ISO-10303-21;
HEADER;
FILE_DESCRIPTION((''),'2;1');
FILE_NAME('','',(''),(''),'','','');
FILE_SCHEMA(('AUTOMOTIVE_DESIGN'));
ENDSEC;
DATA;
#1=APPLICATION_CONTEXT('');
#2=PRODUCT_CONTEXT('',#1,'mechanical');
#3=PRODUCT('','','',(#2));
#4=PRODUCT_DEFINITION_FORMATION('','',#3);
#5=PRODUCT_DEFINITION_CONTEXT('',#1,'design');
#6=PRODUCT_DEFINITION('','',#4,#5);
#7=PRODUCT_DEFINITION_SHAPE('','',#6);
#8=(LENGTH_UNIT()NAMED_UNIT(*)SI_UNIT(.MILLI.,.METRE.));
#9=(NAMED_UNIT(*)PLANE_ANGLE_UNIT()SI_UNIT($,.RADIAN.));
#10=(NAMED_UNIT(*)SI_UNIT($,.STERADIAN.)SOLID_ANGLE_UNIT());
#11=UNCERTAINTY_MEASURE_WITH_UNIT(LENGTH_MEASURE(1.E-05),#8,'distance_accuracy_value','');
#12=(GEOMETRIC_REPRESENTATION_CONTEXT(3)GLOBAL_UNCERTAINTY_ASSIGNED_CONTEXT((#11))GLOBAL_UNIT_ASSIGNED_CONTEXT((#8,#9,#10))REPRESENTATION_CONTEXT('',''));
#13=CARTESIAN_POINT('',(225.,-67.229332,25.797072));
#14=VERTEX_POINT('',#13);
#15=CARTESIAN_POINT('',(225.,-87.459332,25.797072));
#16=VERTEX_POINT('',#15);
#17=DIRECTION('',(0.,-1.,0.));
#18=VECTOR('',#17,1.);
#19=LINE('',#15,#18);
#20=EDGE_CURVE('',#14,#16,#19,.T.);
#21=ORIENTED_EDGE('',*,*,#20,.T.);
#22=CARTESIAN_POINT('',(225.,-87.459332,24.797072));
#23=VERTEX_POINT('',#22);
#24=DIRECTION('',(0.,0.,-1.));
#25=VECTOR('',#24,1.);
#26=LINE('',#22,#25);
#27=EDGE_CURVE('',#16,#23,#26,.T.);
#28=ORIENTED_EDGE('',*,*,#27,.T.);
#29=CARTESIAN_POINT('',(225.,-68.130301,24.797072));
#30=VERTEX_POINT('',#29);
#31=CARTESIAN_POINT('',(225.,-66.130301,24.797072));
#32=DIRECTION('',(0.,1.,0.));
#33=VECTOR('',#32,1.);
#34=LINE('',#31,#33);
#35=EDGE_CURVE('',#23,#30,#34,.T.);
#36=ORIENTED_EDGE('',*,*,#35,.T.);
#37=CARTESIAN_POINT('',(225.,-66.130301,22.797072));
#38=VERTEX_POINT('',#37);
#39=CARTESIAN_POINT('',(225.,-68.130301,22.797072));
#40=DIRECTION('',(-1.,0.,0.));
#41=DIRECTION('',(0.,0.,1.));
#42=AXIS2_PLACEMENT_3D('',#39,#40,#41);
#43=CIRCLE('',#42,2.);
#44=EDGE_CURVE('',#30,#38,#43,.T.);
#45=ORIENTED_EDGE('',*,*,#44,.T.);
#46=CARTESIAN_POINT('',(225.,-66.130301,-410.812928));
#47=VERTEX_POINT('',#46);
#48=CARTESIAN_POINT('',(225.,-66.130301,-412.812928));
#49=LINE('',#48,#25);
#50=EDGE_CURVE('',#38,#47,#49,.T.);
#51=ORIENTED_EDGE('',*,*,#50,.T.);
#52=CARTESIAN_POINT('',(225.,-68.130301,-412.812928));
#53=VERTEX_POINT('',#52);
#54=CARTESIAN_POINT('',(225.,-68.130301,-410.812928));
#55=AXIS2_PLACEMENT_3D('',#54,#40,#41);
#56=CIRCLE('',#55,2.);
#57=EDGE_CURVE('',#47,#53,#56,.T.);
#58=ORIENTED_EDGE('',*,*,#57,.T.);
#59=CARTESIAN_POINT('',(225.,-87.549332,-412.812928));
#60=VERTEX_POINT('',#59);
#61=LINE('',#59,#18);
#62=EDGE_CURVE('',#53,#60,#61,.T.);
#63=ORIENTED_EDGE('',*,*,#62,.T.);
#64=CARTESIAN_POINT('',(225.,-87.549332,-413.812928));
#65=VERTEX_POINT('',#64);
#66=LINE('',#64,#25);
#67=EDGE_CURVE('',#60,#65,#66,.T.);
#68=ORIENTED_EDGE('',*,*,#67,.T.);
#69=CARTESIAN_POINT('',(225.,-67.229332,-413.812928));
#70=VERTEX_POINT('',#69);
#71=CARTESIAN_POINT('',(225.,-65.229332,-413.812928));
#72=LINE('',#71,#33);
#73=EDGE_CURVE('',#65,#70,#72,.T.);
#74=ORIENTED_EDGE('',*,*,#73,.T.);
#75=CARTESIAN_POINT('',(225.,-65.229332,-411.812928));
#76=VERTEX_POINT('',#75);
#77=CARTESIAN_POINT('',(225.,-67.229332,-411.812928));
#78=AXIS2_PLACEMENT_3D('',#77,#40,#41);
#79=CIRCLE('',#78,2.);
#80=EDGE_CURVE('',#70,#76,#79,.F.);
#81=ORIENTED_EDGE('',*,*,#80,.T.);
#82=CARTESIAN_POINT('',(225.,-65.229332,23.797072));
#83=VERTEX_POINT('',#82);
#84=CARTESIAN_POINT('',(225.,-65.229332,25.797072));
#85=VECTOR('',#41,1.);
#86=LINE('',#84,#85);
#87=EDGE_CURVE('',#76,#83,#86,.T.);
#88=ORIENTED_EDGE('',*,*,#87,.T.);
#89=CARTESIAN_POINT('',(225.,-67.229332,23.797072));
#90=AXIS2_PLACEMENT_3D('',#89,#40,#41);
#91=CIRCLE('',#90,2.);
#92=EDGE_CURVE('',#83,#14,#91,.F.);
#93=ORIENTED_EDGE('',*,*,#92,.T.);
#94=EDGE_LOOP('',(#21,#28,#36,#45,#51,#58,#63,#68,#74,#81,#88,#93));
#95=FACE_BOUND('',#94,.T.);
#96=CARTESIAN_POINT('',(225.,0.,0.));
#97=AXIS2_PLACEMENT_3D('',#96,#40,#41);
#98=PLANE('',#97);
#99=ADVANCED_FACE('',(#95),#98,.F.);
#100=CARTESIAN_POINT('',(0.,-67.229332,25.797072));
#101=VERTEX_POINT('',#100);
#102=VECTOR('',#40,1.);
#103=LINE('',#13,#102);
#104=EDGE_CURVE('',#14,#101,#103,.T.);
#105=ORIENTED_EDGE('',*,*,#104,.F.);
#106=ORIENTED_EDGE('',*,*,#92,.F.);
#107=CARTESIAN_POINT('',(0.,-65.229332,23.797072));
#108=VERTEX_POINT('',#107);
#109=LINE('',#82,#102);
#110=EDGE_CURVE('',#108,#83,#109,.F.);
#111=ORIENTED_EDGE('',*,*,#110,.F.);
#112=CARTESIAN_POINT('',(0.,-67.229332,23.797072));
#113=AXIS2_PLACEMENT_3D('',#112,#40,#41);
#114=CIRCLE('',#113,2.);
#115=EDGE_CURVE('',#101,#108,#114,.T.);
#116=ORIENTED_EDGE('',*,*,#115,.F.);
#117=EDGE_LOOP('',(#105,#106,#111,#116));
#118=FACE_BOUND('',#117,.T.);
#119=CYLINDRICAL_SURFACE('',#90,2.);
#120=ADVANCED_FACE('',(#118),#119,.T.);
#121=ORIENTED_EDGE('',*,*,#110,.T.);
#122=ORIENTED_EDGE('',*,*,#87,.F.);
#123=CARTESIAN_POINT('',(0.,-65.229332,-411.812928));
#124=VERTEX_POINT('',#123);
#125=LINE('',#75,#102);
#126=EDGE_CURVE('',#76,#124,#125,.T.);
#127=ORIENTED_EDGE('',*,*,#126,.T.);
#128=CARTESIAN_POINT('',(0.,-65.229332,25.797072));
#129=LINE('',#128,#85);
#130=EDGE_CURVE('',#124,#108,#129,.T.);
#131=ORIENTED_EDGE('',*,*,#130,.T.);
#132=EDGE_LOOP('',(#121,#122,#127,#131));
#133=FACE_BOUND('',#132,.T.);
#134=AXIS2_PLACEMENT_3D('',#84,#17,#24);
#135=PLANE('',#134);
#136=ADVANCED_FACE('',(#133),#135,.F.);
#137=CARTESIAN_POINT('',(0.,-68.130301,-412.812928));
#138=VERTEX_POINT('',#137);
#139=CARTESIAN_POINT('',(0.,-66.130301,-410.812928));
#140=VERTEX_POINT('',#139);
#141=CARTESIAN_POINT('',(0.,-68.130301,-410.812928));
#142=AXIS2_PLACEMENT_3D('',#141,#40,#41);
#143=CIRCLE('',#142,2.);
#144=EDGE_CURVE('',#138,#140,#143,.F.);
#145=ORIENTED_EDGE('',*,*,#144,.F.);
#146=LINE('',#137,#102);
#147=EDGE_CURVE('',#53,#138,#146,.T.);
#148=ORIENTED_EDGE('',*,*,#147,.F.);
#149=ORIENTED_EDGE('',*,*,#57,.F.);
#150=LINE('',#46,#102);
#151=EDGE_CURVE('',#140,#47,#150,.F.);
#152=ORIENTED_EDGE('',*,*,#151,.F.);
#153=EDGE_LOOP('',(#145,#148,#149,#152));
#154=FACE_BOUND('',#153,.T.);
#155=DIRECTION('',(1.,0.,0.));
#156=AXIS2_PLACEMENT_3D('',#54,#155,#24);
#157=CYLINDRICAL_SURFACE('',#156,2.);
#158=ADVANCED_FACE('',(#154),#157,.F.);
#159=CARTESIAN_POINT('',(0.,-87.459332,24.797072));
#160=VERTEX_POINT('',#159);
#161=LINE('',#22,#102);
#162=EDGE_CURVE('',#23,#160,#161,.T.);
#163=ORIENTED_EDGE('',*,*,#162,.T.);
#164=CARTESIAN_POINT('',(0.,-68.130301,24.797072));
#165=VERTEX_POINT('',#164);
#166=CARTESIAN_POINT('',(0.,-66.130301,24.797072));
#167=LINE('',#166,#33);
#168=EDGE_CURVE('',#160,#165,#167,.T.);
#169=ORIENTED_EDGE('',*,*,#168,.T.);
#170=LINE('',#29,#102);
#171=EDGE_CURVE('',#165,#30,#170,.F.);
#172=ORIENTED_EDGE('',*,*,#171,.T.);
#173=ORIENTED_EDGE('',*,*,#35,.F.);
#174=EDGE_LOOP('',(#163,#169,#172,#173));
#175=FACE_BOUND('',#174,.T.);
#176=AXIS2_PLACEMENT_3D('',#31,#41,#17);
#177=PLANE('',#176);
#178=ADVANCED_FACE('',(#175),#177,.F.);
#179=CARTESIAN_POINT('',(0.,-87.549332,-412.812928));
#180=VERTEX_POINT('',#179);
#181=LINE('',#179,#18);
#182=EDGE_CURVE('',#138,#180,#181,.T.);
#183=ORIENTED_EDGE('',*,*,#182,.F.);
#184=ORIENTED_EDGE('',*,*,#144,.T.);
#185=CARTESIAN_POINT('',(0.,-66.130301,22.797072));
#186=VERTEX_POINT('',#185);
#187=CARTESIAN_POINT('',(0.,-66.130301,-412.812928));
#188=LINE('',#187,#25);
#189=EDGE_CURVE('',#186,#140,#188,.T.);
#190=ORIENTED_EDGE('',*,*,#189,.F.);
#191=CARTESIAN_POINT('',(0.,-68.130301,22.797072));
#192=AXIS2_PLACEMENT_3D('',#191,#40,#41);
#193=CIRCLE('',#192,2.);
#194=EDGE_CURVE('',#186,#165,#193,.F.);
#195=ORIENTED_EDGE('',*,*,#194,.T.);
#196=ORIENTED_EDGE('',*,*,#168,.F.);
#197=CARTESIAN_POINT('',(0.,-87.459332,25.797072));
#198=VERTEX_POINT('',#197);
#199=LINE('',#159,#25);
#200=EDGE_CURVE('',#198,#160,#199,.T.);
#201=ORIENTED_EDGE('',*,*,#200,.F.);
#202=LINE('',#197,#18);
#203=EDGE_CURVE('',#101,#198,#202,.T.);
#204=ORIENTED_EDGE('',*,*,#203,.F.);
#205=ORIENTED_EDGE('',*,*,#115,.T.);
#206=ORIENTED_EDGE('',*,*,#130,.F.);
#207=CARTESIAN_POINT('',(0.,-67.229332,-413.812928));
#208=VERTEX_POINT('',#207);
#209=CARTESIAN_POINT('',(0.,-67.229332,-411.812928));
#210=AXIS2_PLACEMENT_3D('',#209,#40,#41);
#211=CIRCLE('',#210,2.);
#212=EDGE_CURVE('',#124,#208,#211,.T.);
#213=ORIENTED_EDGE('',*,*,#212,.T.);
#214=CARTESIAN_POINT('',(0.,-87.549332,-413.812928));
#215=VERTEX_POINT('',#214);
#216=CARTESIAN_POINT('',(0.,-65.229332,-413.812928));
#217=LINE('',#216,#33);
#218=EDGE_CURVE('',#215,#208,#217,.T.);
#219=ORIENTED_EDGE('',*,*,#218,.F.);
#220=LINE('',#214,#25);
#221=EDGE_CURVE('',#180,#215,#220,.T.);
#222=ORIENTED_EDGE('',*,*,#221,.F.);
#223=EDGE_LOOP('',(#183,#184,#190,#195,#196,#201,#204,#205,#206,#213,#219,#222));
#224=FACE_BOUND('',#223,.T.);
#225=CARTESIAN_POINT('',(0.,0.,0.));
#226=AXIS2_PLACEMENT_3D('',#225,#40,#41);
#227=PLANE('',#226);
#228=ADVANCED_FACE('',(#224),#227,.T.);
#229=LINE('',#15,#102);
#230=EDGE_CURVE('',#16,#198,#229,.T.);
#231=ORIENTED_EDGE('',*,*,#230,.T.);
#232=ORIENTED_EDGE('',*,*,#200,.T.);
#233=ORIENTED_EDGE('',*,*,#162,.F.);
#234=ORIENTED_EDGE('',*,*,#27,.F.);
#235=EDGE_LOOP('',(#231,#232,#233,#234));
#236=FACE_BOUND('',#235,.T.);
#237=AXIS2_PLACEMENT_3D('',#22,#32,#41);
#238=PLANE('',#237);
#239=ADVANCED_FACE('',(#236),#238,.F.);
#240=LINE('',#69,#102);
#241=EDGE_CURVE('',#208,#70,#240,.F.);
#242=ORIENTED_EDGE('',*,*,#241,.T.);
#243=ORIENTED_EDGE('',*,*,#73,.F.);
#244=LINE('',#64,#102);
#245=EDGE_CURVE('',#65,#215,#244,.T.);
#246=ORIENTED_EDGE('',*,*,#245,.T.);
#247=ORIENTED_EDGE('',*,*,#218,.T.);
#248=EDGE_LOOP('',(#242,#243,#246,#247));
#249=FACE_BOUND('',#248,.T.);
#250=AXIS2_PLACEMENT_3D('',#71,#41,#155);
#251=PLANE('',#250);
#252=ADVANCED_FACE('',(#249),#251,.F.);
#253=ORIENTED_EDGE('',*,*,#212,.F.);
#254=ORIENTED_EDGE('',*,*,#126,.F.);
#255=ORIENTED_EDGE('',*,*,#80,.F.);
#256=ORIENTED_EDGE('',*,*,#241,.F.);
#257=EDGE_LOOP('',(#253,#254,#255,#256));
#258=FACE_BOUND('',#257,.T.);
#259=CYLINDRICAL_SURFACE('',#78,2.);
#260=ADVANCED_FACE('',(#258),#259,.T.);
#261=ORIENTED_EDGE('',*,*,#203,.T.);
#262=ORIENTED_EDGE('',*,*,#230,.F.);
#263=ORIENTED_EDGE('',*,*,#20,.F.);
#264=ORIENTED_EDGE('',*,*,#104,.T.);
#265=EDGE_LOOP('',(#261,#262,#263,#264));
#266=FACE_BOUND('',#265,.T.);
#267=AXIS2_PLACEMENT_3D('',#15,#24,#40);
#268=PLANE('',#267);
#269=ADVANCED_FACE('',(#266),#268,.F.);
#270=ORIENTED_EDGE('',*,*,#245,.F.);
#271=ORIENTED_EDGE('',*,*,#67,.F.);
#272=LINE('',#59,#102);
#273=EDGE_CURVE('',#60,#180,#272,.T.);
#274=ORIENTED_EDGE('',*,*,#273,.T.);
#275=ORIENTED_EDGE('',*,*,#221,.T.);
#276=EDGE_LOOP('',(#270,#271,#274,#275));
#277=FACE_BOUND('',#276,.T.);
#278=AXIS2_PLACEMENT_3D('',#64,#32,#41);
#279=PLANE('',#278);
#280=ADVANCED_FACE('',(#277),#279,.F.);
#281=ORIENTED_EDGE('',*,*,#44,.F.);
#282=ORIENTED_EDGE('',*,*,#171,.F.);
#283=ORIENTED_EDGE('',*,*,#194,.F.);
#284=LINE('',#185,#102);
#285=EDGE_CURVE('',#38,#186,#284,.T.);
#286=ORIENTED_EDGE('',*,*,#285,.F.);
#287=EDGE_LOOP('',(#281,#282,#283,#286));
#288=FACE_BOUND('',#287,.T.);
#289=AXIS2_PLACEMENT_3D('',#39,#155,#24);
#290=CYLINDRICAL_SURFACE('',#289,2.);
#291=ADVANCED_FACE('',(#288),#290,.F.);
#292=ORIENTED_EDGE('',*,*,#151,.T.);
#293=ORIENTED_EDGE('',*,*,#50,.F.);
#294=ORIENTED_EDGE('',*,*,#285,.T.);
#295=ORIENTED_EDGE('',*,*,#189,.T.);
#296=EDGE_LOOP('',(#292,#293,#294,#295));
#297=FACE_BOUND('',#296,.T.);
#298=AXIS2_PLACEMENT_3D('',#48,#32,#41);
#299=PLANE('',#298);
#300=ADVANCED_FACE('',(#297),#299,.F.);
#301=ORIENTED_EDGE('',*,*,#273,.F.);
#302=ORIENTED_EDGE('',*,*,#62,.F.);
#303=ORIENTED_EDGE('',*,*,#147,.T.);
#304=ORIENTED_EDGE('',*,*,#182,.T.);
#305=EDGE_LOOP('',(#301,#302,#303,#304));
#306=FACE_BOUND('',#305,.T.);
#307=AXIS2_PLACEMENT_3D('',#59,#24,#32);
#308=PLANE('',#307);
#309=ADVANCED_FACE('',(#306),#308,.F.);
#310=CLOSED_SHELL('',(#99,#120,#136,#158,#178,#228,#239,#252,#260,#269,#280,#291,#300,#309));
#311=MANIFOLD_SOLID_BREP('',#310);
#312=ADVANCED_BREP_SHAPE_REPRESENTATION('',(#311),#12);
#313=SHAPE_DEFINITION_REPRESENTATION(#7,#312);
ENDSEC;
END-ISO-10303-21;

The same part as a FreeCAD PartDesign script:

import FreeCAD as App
import Part
import Sketcher
from FreeCAD import Vector


def edges_at(feature, points):
    """Names of the edges that pass closest to the given points."""
    edges = feature.Shape.Edges
    near = lambda p: min(range(len(edges)), key=lambda i: edges[i].distToShape(Part.Vertex(*p))[0])
    return sorted({f"Edge{near(p) + 1}" for p in points})

doc = App.newDocument("Part")
body = doc.addObject("PartDesign::Body", "Body")

# Sketch on YZ plane
sketch1 = doc.addObject("Sketcher::SketchObject", "Sketch")
body.addObject(sketch1)
sketch1.AttachmentSupport = (doc.YZ_Plane, [""])
sketch1.MapMode = "FlatFace"
sketch1.addGeometry([
    Part.LineSegment(Vector(-65.2, 25.8, 0), Vector(-87.5, 25.8, 0)),  # 0
    Part.LineSegment(Vector(-87.5, 25.8, 0), Vector(-87.5, 24.8, 0)),  # 1
    Part.LineSegment(Vector(-87.5, 24.8, 0), Vector(-66.1, 24.8, 0)),  # 2
    Part.LineSegment(Vector(-66.1, 24.8, 0), Vector(-66.1, -412.8, 0)),  # 3
    Part.LineSegment(Vector(-66.1, -412.8, 0), Vector(-87.5, -412.8, 0)),  # 4
    Part.LineSegment(Vector(-87.5, -412.8, 0), Vector(-87.5, -413.8, 0)),  # 5
    Part.LineSegment(Vector(-87.5, -413.8, 0), Vector(-65.2, -413.8, 0)),  # 6
    Part.LineSegment(Vector(-65.2, -413.8, 0), Vector(-65.2, 25.8, 0)),  # 7
], False)
sketch1.addConstraint([
    Sketcher.Constraint("Coincident", 0, 2, 1, 1),
    Sketcher.Constraint("Coincident", 1, 2, 2, 1),
    Sketcher.Constraint("Coincident", 2, 2, 3, 1),
    Sketcher.Constraint("Coincident", 3, 2, 4, 1),
    Sketcher.Constraint("Coincident", 4, 2, 5, 1),
    Sketcher.Constraint("Coincident", 5, 2, 6, 1),
    Sketcher.Constraint("Coincident", 6, 2, 7, 1),
    Sketcher.Constraint("Coincident", 7, 2, 0, 1),
    Sketcher.Constraint("Horizontal", 0),
    Sketcher.Constraint("Vertical", 1),
    Sketcher.Constraint("Horizontal", 2),
    Sketcher.Constraint("Vertical", 3),
    Sketcher.Constraint("Horizontal", 4),
    Sketcher.Constraint("Vertical", 5),
    Sketcher.Constraint("Horizontal", 6),
    Sketcher.Constraint("Vertical", 7),
    Sketcher.Constraint("Equal", 1, 5),
    Sketcher.Constraint("DistanceY", 1, 2, 1, 1, 1.0),
    Sketcher.Constraint("DistanceX", 0, 2, 0, 1, 22.23),
    Sketcher.Constraint("DistanceX", 6, 1, 6, 2, 22.32),
    Sketcher.Constraint("DistanceY", 3, 2, 3, 1, 437.61),
    Sketcher.Constraint("DistanceX", 2, 1, 2, 2, 21.329031),
    Sketcher.Constraint("DistanceX", 2, 2, -1, 1, 66.130301),
    Sketcher.Constraint("DistanceY", -1, 1, 0, 2, 25.797072),
])
pad1 = doc.addObject("PartDesign::Pad", "Pad")
body.addObject(pad1)
pad1.Profile = sketch1
pad1.Length = 225
doc.recompute()

fillet = doc.addObject("PartDesign::Fillet", "Fillet")
body.addObject(fillet)
fillet.Base = (pad1, edges_at(pad1, [(112.5, -65.229, 25.797), (112.5, -65.229, -413.813)]))
fillet.Radius = 2
doc.recompute()

fillet2 = doc.addObject("PartDesign::Fillet", "Fillet001")
body.addObject(fillet2)
fillet2.Base = (fillet, edges_at(fillet, [(112.5, -66.13, -412.813), (112.5, -66.13, 24.797)]))
fillet2.Radius = 2

doc.recompute()
